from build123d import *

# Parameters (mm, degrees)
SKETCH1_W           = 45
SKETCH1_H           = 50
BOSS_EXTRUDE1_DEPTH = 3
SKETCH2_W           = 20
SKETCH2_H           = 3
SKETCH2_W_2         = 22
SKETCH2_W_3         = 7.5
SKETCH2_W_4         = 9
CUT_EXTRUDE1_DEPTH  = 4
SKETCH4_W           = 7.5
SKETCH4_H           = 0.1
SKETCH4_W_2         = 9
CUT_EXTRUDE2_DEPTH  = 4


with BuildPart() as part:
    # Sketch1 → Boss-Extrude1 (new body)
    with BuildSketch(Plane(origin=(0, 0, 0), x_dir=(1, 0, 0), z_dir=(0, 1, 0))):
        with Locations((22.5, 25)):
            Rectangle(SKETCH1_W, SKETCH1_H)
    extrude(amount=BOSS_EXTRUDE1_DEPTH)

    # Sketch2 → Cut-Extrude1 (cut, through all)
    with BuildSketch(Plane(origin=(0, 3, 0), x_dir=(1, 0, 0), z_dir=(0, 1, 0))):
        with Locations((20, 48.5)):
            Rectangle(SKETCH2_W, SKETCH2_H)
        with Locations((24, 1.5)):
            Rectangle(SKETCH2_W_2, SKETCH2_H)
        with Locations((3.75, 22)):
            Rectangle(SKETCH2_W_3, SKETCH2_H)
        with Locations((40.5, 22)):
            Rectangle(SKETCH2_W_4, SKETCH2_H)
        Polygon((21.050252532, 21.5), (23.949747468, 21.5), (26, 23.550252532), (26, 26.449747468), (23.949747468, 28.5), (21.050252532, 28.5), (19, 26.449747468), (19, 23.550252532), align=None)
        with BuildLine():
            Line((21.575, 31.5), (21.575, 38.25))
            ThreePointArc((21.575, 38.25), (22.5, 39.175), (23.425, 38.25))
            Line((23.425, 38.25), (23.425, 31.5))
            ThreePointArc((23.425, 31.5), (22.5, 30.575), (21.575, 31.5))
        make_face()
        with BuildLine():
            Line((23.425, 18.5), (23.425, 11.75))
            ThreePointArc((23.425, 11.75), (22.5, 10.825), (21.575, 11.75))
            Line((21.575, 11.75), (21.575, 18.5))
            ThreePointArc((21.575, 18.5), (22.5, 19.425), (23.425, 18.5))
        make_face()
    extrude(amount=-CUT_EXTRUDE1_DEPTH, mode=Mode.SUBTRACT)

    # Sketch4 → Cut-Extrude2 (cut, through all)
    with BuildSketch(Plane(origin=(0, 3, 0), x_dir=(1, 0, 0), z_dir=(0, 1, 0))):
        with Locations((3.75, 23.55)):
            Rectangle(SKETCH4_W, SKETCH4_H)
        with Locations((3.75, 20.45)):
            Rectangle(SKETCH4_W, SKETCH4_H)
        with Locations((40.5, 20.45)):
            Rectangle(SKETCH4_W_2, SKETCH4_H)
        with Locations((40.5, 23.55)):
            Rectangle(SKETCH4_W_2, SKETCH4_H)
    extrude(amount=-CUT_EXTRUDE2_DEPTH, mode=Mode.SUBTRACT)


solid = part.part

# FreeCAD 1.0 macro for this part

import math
import FreeCAD as App
import Part
import Sketcher
from FreeCAD import Vector


def add_polygon(sketch, points):
    """Adds a closed chain of lines whose ends are joined by coincident constraints."""
    first, n = sketch.GeometryCount, len(points)
    for a, b in zip(points, points[1:] + points[:1]):
        sketch.addGeometry(Part.LineSegment(App.Vector(*a, 0), App.Vector(*b, 0)), False)
    for i in range(n):
        sketch.addConstraint(Sketcher.Constraint("Coincident", first + i, 2, first + (i + 1) % n, 1))

doc = App.newDocument("Part")
body = doc.addObject("PartDesign::Body", "Body")

# Sketch on XZ plane
sketch1 = body.newObject("Sketcher::SketchObject", "Sketch")
sketch1.AttachmentSupport = (doc.getObject("XZ_Plane"), [""])
sketch1.MapMode = "FlatFace"
add_polygon(sketch1, [(0, -50), (0, 0), (45, 0), (45, -50)])  # lines 0-3
sketch1.addConstraint([
    Sketcher.Constraint("Vertical", 0),
    Sketcher.Constraint("Horizontal", 1),
    Sketcher.Constraint("Vertical", 2),
    Sketcher.Constraint("Horizontal", 3),
    Sketcher.Constraint("Coincident", 0, 2, -1, 1),
    Sketcher.Constraint("DistanceX", 1, 1, 1, 2, 45.0),
    Sketcher.Constraint("DistanceY", 0, 1, 0, 2, 50.0),
])
pad1 = body.newObject("PartDesign::Pad", "Pad")
pad1.Profile = sketch1
pad1.Length = 3
pad1.Reversed = True

# Sketch on XZ plane
sketch2 = body.newObject("Sketcher::SketchObject", "Sketch001")
sketch2.AttachmentSupport = (doc.getObject("XZ_Plane"), [""])
sketch2.MapMode = "FlatFace"
sketch2.AttachmentOffset = App.Placement(Vector(0, 0, -3), App.Rotation())
add_polygon(sketch2, [(10, -50), (10, -47), (30, -47), (30, -50)])  # lines 0-3
add_polygon(sketch2, [(13, -3), (13, 0), (35, 0), (35, -3)])  # lines 4-7
add_polygon(sketch2, [(0, -23.5), (0, -20.5), (7.5, -20.5), (7.5, -23.5)])  # lines 8-11
add_polygon(sketch2, [(36, -23.5), (36, -20.5), (45, -20.5), (45, -23.5)])  # lines 12-15
add_polygon(sketch2, [(21.1, -21.5), (23.9, -21.5), (26, -23.6), (26, -26.4), (23.9, -28.5), (21.1, -28.5), (19, -26.4), (19, -23.6)])  # lines 16-23
sketch2.addGeometry(Part.LineSegment(Vector(21.6, -38.2, 0), Vector(21.6, -31.5, 0)), False)  # 24
sketch2.addGeometry(Part.ArcOfCircle(Part.Circle(Vector(22.5, -31.5, 0), Vector(0, 0, 1), 0.9), math.radians(0), math.radians(180)), False)  # 25
sketch2.addGeometry(Part.LineSegment(Vector(23.4, -31.5, 0), Vector(23.4, -38.2, 0)), False)  # 26
sketch2.addGeometry(Part.ArcOfCircle(Part.Circle(Vector(22.5, -38.2, 0), Vector(0, 0, 1), 0.9), math.radians(180), math.radians(360)), False)  # 27
sketch2.addGeometry(Part.LineSegment(Vector(23.4, -11.8, 0), Vector(23.4, -18.5, 0)), False)  # 28
sketch2.addGeometry(Part.ArcOfCircle(Part.Circle(Vector(22.5, -18.5, 0), Vector(0, 0, 1), 0.9), math.radians(180), math.radians(360)), False)  # 29
sketch2.addGeometry(Part.LineSegment(Vector(21.6, -18.5, 0), Vector(21.6, -11.8, 0)), False)  # 30
sketch2.addGeometry(Part.ArcOfCircle(Part.Circle(Vector(22.5, -11.8, 0), Vector(0, 0, 1), 0.9), math.radians(0), math.radians(180)), False)  # 31
sketch2.addConstraint([
    Sketcher.Constraint("Tangent", 24, 2, 25, 2),
    Sketcher.Constraint("Tangent", 25, 1, 26, 1),
    Sketcher.Constraint("Tangent", 26, 2, 27, 2),
    Sketcher.Constraint("Tangent", 27, 1, 24, 1),
    Sketcher.Constraint("Tangent", 28, 2, 29, 2),
    Sketcher.Constraint("Tangent", 29, 1, 30, 1),
    Sketcher.Constraint("Tangent", 30, 2, 31, 2),
    Sketcher.Constraint("Tangent", 31, 1, 28, 1),
    Sketcher.Constraint("Vertical", 0),
    Sketcher.Constraint("Horizontal", 1),
    Sketcher.Constraint("Vertical", 2),
    Sketcher.Constraint("Horizontal", 3),
    Sketcher.Constraint("Vertical", 4),
    Sketcher.Constraint("Horizontal", 5),
    Sketcher.Constraint("Vertical", 6),
    Sketcher.Constraint("Horizontal", 7),
    Sketcher.Constraint("Vertical", 8),
    Sketcher.Constraint("Horizontal", 9),
    Sketcher.Constraint("Vertical", 10),
    Sketcher.Constraint("Horizontal", 11),
    Sketcher.Constraint("Vertical", 12),
    Sketcher.Constraint("Horizontal", 13),
    Sketcher.Constraint("Vertical", 14),
    Sketcher.Constraint("Horizontal", 15),
    Sketcher.Constraint("Horizontal", 16),
    Sketcher.Constraint("Vertical", 18),
    Sketcher.Constraint("Horizontal", 20),
    Sketcher.Constraint("Vertical", 22),
    Sketcher.Constraint("Vertical", 24),
    Sketcher.Constraint("Vertical", 26),
    Sketcher.Constraint("Vertical", 28),
    Sketcher.Constraint("Vertical", 30),
    Sketcher.Constraint("Equal", 27, 29),
    Sketcher.Constraint("PointOnObject", 4, 2, -1),
    Sketcher.Constraint("PointOnObject", 8, 2, -2),
    Sketcher.Constraint("Perpendicular", 17, 19),
    Sketcher.Constraint("Perpendicular", 19, 21),
    Sketcher.Constraint("Perpendicular", 21, 23),
    Sketcher.Constraint("Horizontal", 9, 2, 12, 2),
    Sketcher.Constraint("Horizontal", 11, 2, 14, 2),
    Sketcher.Constraint("Horizontal", 18, 2, 21, 2),
    Sketcher.Constraint("Horizontal", 17, 2, 22, 2),
    Sketcher.Constraint("Vertical", 27, 3, 29, 3),
    Sketcher.Constraint("Vertical", 16, 2, 19, 2),
    Sketcher.Constraint("Vertical", 20, 2, 23, 2),
    Sketcher.Constraint("Equal", 2, 4),
    Sketcher.Constraint("Equal", 6, 8),
    Sketcher.Constraint("Equal", 20, 18),
    Sketcher.Constraint("Equal", 26, 28),
    Sketcher.Constraint("DistanceX", 1, 1, 1, 2, 20.0),
    Sketcher.Constraint("DistanceX", 5, 1, 5, 2, 22.0),
    Sketcher.Constraint("DistanceX", 13, 1, 13, 2, 9.0),
    Sketcher.Constraint("DistanceY", 0, 1, 0, 2, 3.0),
    Sketcher.Constraint("DistanceX", 9, 1, 9, 2, 7.5),
    Sketcher.Constraint("DistanceX", -1, 1, 0, 2, 10.0),
    Sketcher.Constraint("DistanceY", 0, 2, -1, 1, 47.0),
    Sketcher.Constraint("DistanceX", -1, 1, 4, 2, 13.0),
    Sketcher.Constraint("DistanceX", -1, 1, 12, 2, 36.0),
    Sketcher.Constraint("DistanceX", -1, 1, 17, 2, 26.0),
    Sketcher.Constraint("DistanceX", -1, 1, 21, 2, 19.0),
    Sketcher.Constraint("Radius", 25, 0.925),
    Sketcher.Constraint("DistanceY", 25, 3, 29, 3, 13.0),
    Sketcher.Constraint("DistanceY", 8, 2, 29, 3, 2.0),
    Sketcher.Constraint("DistanceX", 9, 2, 29, 3, 15.0),
    Sketcher.Constraint("DistanceY", 16, 2, 29, 3, 3.0),
    Sketcher.Constraint("DistanceY", 24, 1, 24, 2, 6.75),
    Sketcher.Constraint("DistanceY", 25, 3, -1, 1, 31.5),
    Sketcher.Constraint("DistanceX", 16, 1, 16, 2, 2.899495),
])
pocket1 = body.newObject("PartDesign::Pocket", "Pocket")
pocket1.Profile = sketch2
pocket1.Type = "ThroughAll"
pocket1.Reversed = True

# Sketch on XZ plane
sketch3 = body.newObject("Sketcher::SketchObject", "Sketch002")
sketch3.AttachmentSupport = (doc.getObject("XZ_Plane"), [""])
sketch3.MapMode = "FlatFace"
sketch3.AttachmentOffset = App.Placement(Vector(0, 0, -3), App.Rotation())
add_polygon(sketch3, [(0, -23.6), (0, -23.5), (7.5, -23.5), (7.5, -23.6)])  # lines 0-3
add_polygon(sketch3, [(0, -20.5), (0, -20.4), (7.5, -20.4), (7.5, -20.5)])  # lines 4-7
add_polygon(sketch3, [(36, -20.5), (36, -20.4), (45, -20.4), (45, -20.5)])  # lines 8-11
add_polygon(sketch3, [(36, -23.6), (36, -23.5), (45, -23.5), (45, -23.6)])  # lines 12-15
sketch3.addConstraint([
    Sketcher.Constraint("Vertical", 0),
    Sketcher.Constraint("Horizontal", 1),
    Sketcher.Constraint("Vertical", 2),
    Sketcher.Constraint("Horizontal", 3),
    Sketcher.Constraint("Vertical", 4),
    Sketcher.Constraint("Horizontal", 5),
    Sketcher.Constraint("Vertical", 6),
    Sketcher.Constraint("Horizontal", 7),
    Sketcher.Constraint("Vertical", 8),
    Sketcher.Constraint("Horizontal", 9),
    Sketcher.Constraint("Vertical", 10),
    Sketcher.Constraint("Horizontal", 11),
    Sketcher.Constraint("Vertical", 12),
    Sketcher.Constraint("Horizontal", 13),
    Sketcher.Constraint("Vertical", 14),
    Sketcher.Constraint("Horizontal", 15),
    Sketcher.Constraint("PointOnObject", 0, 2, -2),
    Sketcher.Constraint("PointOnObject", 4, 2, -2),
    Sketcher.Constraint("Horizontal", 5, 2, 8, 2),
    Sketcher.Constraint("Horizontal", 7, 2, 10, 2),
    Sketcher.Constraint("Horizontal", 1, 2, 12, 2),
    Sketcher.Constraint("Horizontal", 3, 2, 14, 2),
    Sketcher.Constraint("Vertical", 2, 2, 5, 2),
    Sketcher.Constraint("Vertical", 11, 2, 12, 2),
    Sketcher.Constraint("Vertical", 10, 2, 13, 2),
    Sketcher.Constraint("Equal", 2, 4),
    Sketcher.Constraint("DistanceX", 9, 1, 9, 2, 9.0),
    Sketcher.Constraint("DistanceX", 1, 1, 1, 2, 7.5),
    Sketcher.Constraint("DistanceY", 0, 1, 0, 2, 0.1),
    Sketcher.Constraint("DistanceX", -1, 1, 8, 2, 36.0),
    Sketcher.Constraint("DistanceY", 1, 2, 6, 2, 3.0),
    Sketcher.Constraint("DistanceY", 0, 2, -1, 1, 23.5),
])
pocket2 = body.newObject("PartDesign::Pocket", "Pocket001")
pocket2.Profile = sketch3
pocket2.Type = "ThroughAll"
pocket2.Reversed = True

doc.recompute()
